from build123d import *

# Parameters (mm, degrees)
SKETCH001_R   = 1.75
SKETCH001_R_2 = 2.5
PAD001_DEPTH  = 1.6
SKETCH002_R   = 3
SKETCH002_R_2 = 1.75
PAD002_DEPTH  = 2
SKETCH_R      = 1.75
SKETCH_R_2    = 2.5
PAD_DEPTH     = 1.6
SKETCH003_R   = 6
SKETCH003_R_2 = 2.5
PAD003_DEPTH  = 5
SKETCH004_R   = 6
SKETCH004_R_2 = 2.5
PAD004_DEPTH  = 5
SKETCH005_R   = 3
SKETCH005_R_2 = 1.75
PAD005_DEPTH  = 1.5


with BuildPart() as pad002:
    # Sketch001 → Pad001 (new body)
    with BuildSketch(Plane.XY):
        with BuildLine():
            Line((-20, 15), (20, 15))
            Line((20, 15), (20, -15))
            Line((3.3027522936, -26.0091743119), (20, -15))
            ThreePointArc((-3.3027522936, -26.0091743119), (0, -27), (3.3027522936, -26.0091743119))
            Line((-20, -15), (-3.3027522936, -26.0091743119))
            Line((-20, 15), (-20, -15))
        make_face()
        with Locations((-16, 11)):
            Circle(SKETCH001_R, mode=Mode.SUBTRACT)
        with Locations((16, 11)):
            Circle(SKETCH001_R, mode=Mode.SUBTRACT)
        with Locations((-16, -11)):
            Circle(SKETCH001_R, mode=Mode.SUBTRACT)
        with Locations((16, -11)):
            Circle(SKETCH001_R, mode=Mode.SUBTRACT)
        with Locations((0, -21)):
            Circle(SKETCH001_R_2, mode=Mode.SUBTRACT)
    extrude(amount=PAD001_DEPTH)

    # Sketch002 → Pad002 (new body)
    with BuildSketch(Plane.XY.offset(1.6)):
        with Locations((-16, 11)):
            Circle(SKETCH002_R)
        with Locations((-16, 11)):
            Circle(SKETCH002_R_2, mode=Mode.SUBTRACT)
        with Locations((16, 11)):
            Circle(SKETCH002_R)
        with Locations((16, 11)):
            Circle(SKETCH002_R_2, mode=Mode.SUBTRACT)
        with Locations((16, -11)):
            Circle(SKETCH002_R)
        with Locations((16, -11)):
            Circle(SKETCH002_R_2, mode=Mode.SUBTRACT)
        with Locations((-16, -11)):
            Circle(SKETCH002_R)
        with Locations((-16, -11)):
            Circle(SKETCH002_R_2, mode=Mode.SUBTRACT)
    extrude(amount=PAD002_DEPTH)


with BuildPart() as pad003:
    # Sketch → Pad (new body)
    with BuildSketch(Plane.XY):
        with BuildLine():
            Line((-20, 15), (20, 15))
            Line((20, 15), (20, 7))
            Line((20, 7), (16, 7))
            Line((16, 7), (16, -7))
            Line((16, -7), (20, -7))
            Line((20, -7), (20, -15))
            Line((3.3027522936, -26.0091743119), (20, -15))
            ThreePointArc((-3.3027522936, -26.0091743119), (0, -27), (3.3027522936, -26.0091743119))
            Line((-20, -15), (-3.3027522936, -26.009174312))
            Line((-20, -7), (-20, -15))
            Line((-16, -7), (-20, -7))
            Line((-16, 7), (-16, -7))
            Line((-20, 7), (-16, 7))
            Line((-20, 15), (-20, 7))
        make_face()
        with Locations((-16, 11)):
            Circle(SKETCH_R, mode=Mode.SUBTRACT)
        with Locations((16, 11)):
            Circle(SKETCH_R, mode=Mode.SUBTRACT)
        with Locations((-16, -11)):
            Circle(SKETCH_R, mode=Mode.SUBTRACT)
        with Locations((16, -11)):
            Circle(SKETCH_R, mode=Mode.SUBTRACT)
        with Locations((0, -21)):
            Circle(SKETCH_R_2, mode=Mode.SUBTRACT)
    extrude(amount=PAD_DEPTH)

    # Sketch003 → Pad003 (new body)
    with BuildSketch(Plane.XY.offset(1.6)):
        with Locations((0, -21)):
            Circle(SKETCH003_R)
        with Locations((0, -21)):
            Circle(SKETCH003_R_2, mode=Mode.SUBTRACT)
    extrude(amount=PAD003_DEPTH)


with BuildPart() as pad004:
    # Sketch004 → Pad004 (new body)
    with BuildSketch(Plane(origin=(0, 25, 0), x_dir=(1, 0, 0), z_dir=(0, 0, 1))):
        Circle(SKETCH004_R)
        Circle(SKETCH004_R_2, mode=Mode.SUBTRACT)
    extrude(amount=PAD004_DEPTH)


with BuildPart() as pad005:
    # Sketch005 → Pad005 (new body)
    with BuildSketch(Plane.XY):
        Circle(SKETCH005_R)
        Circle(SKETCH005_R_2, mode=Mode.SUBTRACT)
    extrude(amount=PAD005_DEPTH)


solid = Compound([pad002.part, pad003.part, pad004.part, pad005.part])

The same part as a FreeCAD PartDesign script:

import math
import FreeCAD as App
import Part
import Sketcher

doc = App.newDocument("Part")
body = doc.addObject("PartDesign::Body", "Body")

# Sketch on XY plane
sketch1 = body.newObject("Sketcher::SketchObject", "Sketch")
sketch1.AttachmentSupport = (doc.getObject("XY_Plane"), [""])
sketch1.MapMode = "FlatFace"
sketch1.addGeometry(Part.LineSegment(App.Vector(20, 15, 0), App.Vector(-20, 15, 0)), False)
sketch1.addGeometry(Part.LineSegment(App.Vector(-20, 15, 0), App.Vector(-20, -15, 0)), False)
sketch1.addGeometry(Part.LineSegment(App.Vector(-20, -15, 0), App.Vector(-3.3, -26, 0)), False)
sketch1.addGeometry(Part.ArcOfCircle(Part.Circle(App.Vector(0, -21, 0), App.Vector(0, 0, 1), 6), math.radians(-123), math.radians(-57)), False)
sketch1.addGeometry(Part.LineSegment(App.Vector(3.3, -26, 0), App.Vector(20, -15, 0)), False)
sketch1.addGeometry(Part.LineSegment(App.Vector(20, -15, 0), App.Vector(20, 15, 0)), False)
sketch1.addGeometry(Part.Circle(App.Vector(16, -11, 0), App.Vector(0, 0, 1), 1.8), False)
sketch1.addGeometry(Part.Circle(App.Vector(0, -21, 0), App.Vector(0, 0, 1), 2.5), False)
sketch1.addGeometry(Part.Circle(App.Vector(-16, -11, 0), App.Vector(0, 0, 1), 1.8), False)
sketch1.addGeometry(Part.Circle(App.Vector(16, 11, 0), App.Vector(0, 0, 1), 1.8), False)
sketch1.addGeometry(Part.Circle(App.Vector(-16, 11, 0), App.Vector(0, 0, 1), 1.8), False)
sketch1.addConstraint(Sketcher.Constraint("Coincident", 0, 2, 1, 1))
sketch1.addConstraint(Sketcher.Constraint("Coincident", 1, 2, 2, 1))
sketch1.addConstraint(Sketcher.Constraint("Tangent", 2, 2, 3, 1))
sketch1.addConstraint(Sketcher.Constraint("Tangent", 3, 2, 4, 1))
sketch1.addConstraint(Sketcher.Constraint("Coincident", 4, 2, 5, 1))
sketch1.addConstraint(Sketcher.Constraint("Coincident", 5, 2, 0, 1))
sketch1.addConstraint(Sketcher.Constraint("Horizontal", 0))
sketch1.addConstraint(Sketcher.Constraint("Vertical", 1))
sketch1.addConstraint(Sketcher.Constraint("Vertical", 5))
sketch1.addConstraint(Sketcher.Constraint("Coincident", 7, 3, 3, 3))
sketch1.addConstraint(Sketcher.Constraint("Equal", 6, 8))
sketch1.addConstraint(Sketcher.Constraint("Equal", 8, 9))
sketch1.addConstraint(Sketcher.Constraint("Equal", 9, 10))
sketch1.addConstraint(Sketcher.Constraint("Symmetric", 8, 3, 9, 3, -1, 1))
sketch1.addConstraint(Sketcher.Constraint("Symmetric", 6, 3, 10, 3, -1, 1))
sketch1.addConstraint(Sketcher.Constraint("Symmetric", 0, 2, 4, 2, -1, 1))
sketch1.addConstraint(Sketcher.Constraint("Symmetric", 6, 3, 8, 3, -2))
sketch1.addConstraint(Sketcher.Constraint("Symmetric", 2, 2, 3, 2, -2))
sketch1.addConstraint(Sketcher.Constraint("Diameter", 7, 5.0))
sketch1.addConstraint(Sketcher.Constraint("Radius", 3, 6.0))
sketch1.addConstraint(Sketcher.Constraint("Diameter", 6, 3.5))
sketch1.addConstraint(Sketcher.Constraint("DistanceX", 0, 2, 0, 1, 40.0))
sketch1.addConstraint(Sketcher.Constraint("DistanceY", 1, 2, 1, 1, 30.0))
sketch1.addConstraint(Sketcher.Constraint("Distance", 2, 20.0))
sketch1.addConstraint(Sketcher.Constraint("DistanceX", -1, 1, 6, 3, 16.0))
sketch1.addConstraint(Sketcher.Constraint("DistanceY", 6, 3, -1, 1, 11.0))
pad1 = body.newObject("PartDesign::Pad", "Pad")
pad1.Profile = sketch1
pad1.Length = 1.6

# Sketch on XY plane
sketch2 = body.newObject("Sketcher::SketchObject", "Sketch001")
sketch2.AttachmentSupport = (doc.getObject("XY_Plane"), [""])
sketch2.MapMode = "FlatFace"
sketch2.AttachmentOffset = App.Placement(App.Vector(0, 0, 1.6), App.Rotation())
sketch2.addGeometry(Part.Circle(App.Vector(-16, 11, 0), App.Vector(0, 0, 1), 3), False)
sketch2.addGeometry(Part.Circle(App.Vector(-16, 11, 0), App.Vector(0, 0, 1), 1.8), False)
sketch2.addGeometry(Part.Circle(App.Vector(16, 11, 0), App.Vector(0, 0, 1), 3), False)
sketch2.addGeometry(Part.Circle(App.Vector(16, 11, 0), App.Vector(0, 0, 1), 1.8), False)
sketch2.addGeometry(Part.Circle(App.Vector(16, -11, 0), App.Vector(0, 0, 1), 3), False)
sketch2.addGeometry(Part.Circle(App.Vector(16, -11, 0), App.Vector(0, 0, 1), 1.8), False)
sketch2.addGeometry(Part.Circle(App.Vector(-16, -11, 0), App.Vector(0, 0, 1), 3), False)
sketch2.addGeometry(Part.Circle(App.Vector(-16, -11, 0), App.Vector(0, 0, 1), 1.8), False)
sketch2.addConstraint(Sketcher.Constraint("Coincident", 1, 3, 0, 3))
sketch2.addConstraint(Sketcher.Constraint("Coincident", 3, 3, 2, 3))
sketch2.addConstraint(Sketcher.Constraint("Coincident", 5, 3, 4, 3))
sketch2.addConstraint(Sketcher.Constraint("Coincident", 7, 3, 6, 3))
sketch2.addConstraint(Sketcher.Constraint("Equal", 0, 2))
sketch2.addConstraint(Sketcher.Constraint("Equal", 1, 3))
sketch2.addConstraint(Sketcher.Constraint("Equal", 2, 4))
sketch2.addConstraint(Sketcher.Constraint("Equal", 3, 5))
sketch2.addConstraint(Sketcher.Constraint("Equal", 4, 6))
sketch2.addConstraint(Sketcher.Constraint("Equal", 5, 7))
sketch2.addConstraint(Sketcher.Constraint("Symmetric", 0, 3, 4, 3, -1, 1))
sketch2.addConstraint(Sketcher.Constraint("Symmetric", 2, 3, 6, 3, -1, 1))
sketch2.addConstraint(Sketcher.Constraint("Symmetric", 0, 3, 2, 3, -2))
sketch2.addConstraint(Sketcher.Constraint("Diameter", 0, 6.0))
sketch2.addConstraint(Sketcher.Constraint("Diameter", 1, 3.5))
sketch2.addConstraint(Sketcher.Constraint("DistanceX", 0, 3, -1, 1, 16.0))
sketch2.addConstraint(Sketcher.Constraint("DistanceY", -1, 1, 0, 3, 11.0))
pad2 = body.newObject("PartDesign::Pad", "Pad001")
pad2.Profile = sketch2
pad2.Length = 2
body2 = doc.addObject("PartDesign::Body", "Body001")

# Sketch on XY plane
sketch3 = body2.newObject("Sketcher::SketchObject", "Sketch002")
sketch3.AttachmentSupport = (doc.getObject("XY_Plane001"), [""])
sketch3.MapMode = "FlatFace"
sketch3.addGeometry(Part.LineSegment(App.Vector(20, 15, 0), App.Vector(-20, 15, 0)), False)
sketch3.addGeometry(Part.LineSegment(App.Vector(-20, 15, 0), App.Vector(-20, 7, 0)), False)
sketch3.addGeometry(Part.LineSegment(App.Vector(-20, 7, 0), App.Vector(-16, 7, 0)), False)
sketch3.addGeometry(Part.LineSegment(App.Vector(-16, 7, 0), App.Vector(-16, -7, 0)), False)
sketch3.addGeometry(Part.LineSegment(App.Vector(-16, -7, 0), App.Vector(-20, -7, 0)), False)
sketch3.addGeometry(Part.LineSegment(App.Vector(-20, -7, 0), App.Vector(-20, -15, 0)), False)
sketch3.addGeometry(Part.LineSegment(App.Vector(-20, -15, 0), App.Vector(-3.3, -26, 0)), False)
sketch3.addGeometry(Part.ArcOfCircle(Part.Circle(App.Vector(0, -21, 0), App.Vector(0, 0, 1), 6), math.radians(-123), math.radians(-57)), False)
sketch3.addGeometry(Part.LineSegment(App.Vector(3.3, -26, 0), App.Vector(20, -15, 0)), False)
sketch3.addGeometry(Part.LineSegment(App.Vector(20, -15, 0), App.Vector(20, -7, 0)), False)
sketch3.addGeometry(Part.LineSegment(App.Vector(20, -7, 0), App.Vector(16, -7, 0)), False)
sketch3.addGeometry(Part.LineSegment(App.Vector(16, -7, 0), App.Vector(16, 7, 0)), False)
sketch3.addGeometry(Part.LineSegment(App.Vector(16, 7, 0), App.Vector(20, 7, 0)), False)
sketch3.addGeometry(Part.LineSegment(App.Vector(20, 7, 0), App.Vector(20, 15, 0)), False)
sketch3.addGeometry(Part.Circle(App.Vector(16, -11, 0), App.Vector(0, 0, 1), 1.8), False)
sketch3.addGeometry(Part.Circle(App.Vector(0, -21, 0), App.Vector(0, 0, 1), 2.5), False)
sketch3.addGeometry(Part.Circle(App.Vector(-16, -11, 0), App.Vector(0, 0, 1), 1.8), False)
sketch3.addGeometry(Part.Circle(App.Vector(16, 11, 0), App.Vector(0, 0, 1), 1.8), False)
sketch3.addGeometry(Part.Circle(App.Vector(-16, 11, 0), App.Vector(0, 0, 1), 1.8), False)
sketch3.addConstraint(Sketcher.Constraint("Coincident", 0, 2, 1, 1))
sketch3.addConstraint(Sketcher.Constraint("Coincident", 1, 2, 2, 1))
sketch3.addConstraint(Sketcher.Constraint("Coincident", 2, 2, 3, 1))
sketch3.addConstraint(Sketcher.Constraint("Coincident", 3, 2, 4, 1))
sketch3.addConstraint(Sketcher.Constraint("Coincident", 4, 2, 5, 1))
sketch3.addConstraint(Sketcher.Constraint("Coincident", 5, 2, 6, 1))
sketch3.addConstraint(Sketcher.Constraint("Tangent", 6, 2, 7, 1))
sketch3.addConstraint(Sketcher.Constraint("Tangent", 7, 2, 8, 1))
sketch3.addConstraint(Sketcher.Constraint("Coincident", 8, 2, 9, 1))
sketch3.addConstraint(Sketcher.Constraint("Coincident", 9, 2, 10, 1))
sketch3.addConstraint(Sketcher.Constraint("Coincident", 10, 2, 11, 1))
sketch3.addConstraint(Sketcher.Constraint("Coincident", 11, 2, 12, 1))
sketch3.addConstraint(Sketcher.Constraint("Coincident", 12, 2, 13, 1))
sketch3.addConstraint(Sketcher.Constraint("Coincident", 13, 2, 0, 1))
sketch3.addConstraint(Sketcher.Constraint("Horizontal", 0))
sketch3.addConstraint(Sketcher.Constraint("Vertical", 1))
sketch3.addConstraint(Sketcher.Constraint("Horizontal", 2))
sketch3.addConstraint(Sketcher.Constraint("Vertical", 3))
sketch3.addConstraint(Sketcher.Constraint("Horizontal", 4))
sketch3.addConstraint(Sketcher.Constraint("Vertical", 5))
sketch3.addConstraint(Sketcher.Constraint("Vertical", 9))
sketch3.addConstraint(Sketcher.Constraint("Horizontal", 10))
sketch3.addConstraint(Sketcher.Constraint("Vertical", 11))
sketch3.addConstraint(Sketcher.Constraint("Horizontal", 12))
sketch3.addConstraint(Sketcher.Constraint("Vertical", 13))
sketch3.addConstraint(Sketcher.Constraint("Coincident", 15, 3, 7, 3))
sketch3.addConstraint(Sketcher.Constraint("Equal", 14, 16))
sketch3.addConstraint(Sketcher.Constraint("Equal", 16, 17))
sketch3.addConstraint(Sketcher.Constraint("Equal", 17, 18))
sketch3.addConstraint(Sketcher.Constraint("Symmetric", 16, 3, 17, 3, -1, 1))
sketch3.addConstraint(Sketcher.Constraint("Symmetric", 14, 3, 18, 3, -1, 1))
sketch3.addConstraint(Sketcher.Constraint("Symmetric", 0, 2, 8, 2, -1, 1))
sketch3.addConstraint(Sketcher.Constraint("Symmetric", 2, 2, 10, 2, -1, 1))
sketch3.addConstraint(Sketcher.Constraint("Symmetric", 4, 2, 12, 2, -1, 1))
sketch3.addConstraint(Sketcher.Constraint("Symmetric", 14, 3, 16, 3, -2))
sketch3.addConstraint(Sketcher.Constraint("Symmetric", 6, 2, 7, 2, -2))
sketch3.addConstraint(Sketcher.Constraint("Symmetric", 4, 2, 9, 2, -2))
sketch3.addConstraint(Sketcher.Constraint("Vertical", 18, 3, 2, 2))
sketch3.addConstraint(Sketcher.Constraint("Diameter", 15, 5.0))
sketch3.addConstraint(Sketcher.Constraint("Radius", 7, 6.0))
sketch3.addConstraint(Sketcher.Constraint("Diameter", 14, 3.5))
sketch3.addConstraint(Sketcher.Constraint("DistanceX", 0, 2, 0, 1, 40.0))
sketch3.addConstraint(Sketcher.Constraint("DistanceX", 2, 1, 2, 2, 4.0))
sketch3.addConstraint(Sketcher.Constraint("DistanceY", 1, 2, 1, 1, 8.0))
sketch3.addConstraint(Sketcher.Constraint("DistanceY", 3, 2, 3, 1, 14.0))
sketch3.addConstraint(Sketcher.Constraint("Distance", 6, 20.0))
sketch3.addConstraint(Sketcher.Constraint("DistanceY", 14, 3, -1, 1, 11.0))
pad3 = body2.newObject("PartDesign::Pad", "Pad002")
pad3.Profile = sketch3
pad3.Length = 1.6

# Sketch on XY plane
sketch4 = body2.newObject("Sketcher::SketchObject", "Sketch003")
sketch4.AttachmentSupport = (doc.getObject("XY_Plane001"), [""])
sketch4.MapMode = "FlatFace"
sketch4.AttachmentOffset = App.Placement(App.Vector(0, 0, 1.6), App.Rotation())
sketch4.addGeometry(Part.Circle(App.Vector(0, -21, 0), App.Vector(0, 0, 1), 6), False)
sketch4.addGeometry(Part.Circle(App.Vector(0, -21, 0), App.Vector(0, 0, 1), 2.5), False)
sketch4.addConstraint(Sketcher.Constraint("Coincident", 1, 3, 0, 3))
sketch4.addConstraint(Sketcher.Constraint("PointOnObject", 0, 3, -2))
sketch4.addConstraint(Sketcher.Constraint("Diameter", 0, 12.0))
sketch4.addConstraint(Sketcher.Constraint("Diameter", 1, 5.0))
sketch4.addConstraint(Sketcher.Constraint("DistanceY", 0, 3, -1, 1, 21.0))
pad4 = body2.newObject("PartDesign::Pad", "Pad003")
pad4.Profile = sketch4
pad4.Length = 5
body3 = doc.addObject("PartDesign::Body", "Body002")

# Sketch on XY plane
sketch5 = body3.newObject("Sketcher::SketchObject", "Sketch004")
sketch5.AttachmentSupport = (doc.getObject("XY_Plane002"), [""])
sketch5.MapMode = "FlatFace"
sketch5.addGeometry(Part.Circle(App.Vector(0, 25, 0), App.Vector(0, 0, 1), 6), False)
sketch5.addGeometry(Part.Circle(App.Vector(0, 25, 0), App.Vector(0, 0, 1), 2.5), False)
sketch5.addConstraint(Sketcher.Constraint("Coincident", 1, 3, 0, 3))
sketch5.addConstraint(Sketcher.Constraint("PointOnObject", 0, 3, -2))
sketch5.addConstraint(Sketcher.Constraint("Diameter", 0, 12.0))
sketch5.addConstraint(Sketcher.Constraint("Diameter", 1, 5.0))
sketch5.addConstraint(Sketcher.Constraint("DistanceY", -1, 1, 0, 3, 25.0))
pad5 = body3.newObject("PartDesign::Pad", "Pad004")
pad5.Profile = sketch5
pad5.Length = 5
body4 = doc.addObject("PartDesign::Body", "Body003")

# Sketch on XY plane
sketch6 = body4.newObject("Sketcher::SketchObject", "Sketch005")
sketch6.AttachmentSupport = (doc.getObject("XY_Plane003"), [""])
sketch6.MapMode = "FlatFace"
sketch6.addGeometry(Part.Circle(App.Vector(0, 0, 0), App.Vector(0, 0, 1), 3), False)
sketch6.addGeometry(Part.Circle(App.Vector(0, 0, 0), App.Vector(0, 0, 1), 1.8), False)
sketch6.addConstraint(Sketcher.Constraint("Coincident", 0, 3, -1, 1))
sketch6.addConstraint(Sketcher.Constraint("Coincident", 1, 3, -1, 1))
sketch6.addConstraint(Sketcher.Constraint("Diameter", 0, 6.0))
sketch6.addConstraint(Sketcher.Constraint("Diameter", 1, 3.5))
pad6 = body4.newObject("PartDesign::Pad", "Pad005")
pad6.Profile = sketch6
pad6.Length = 1.5

doc.recompute()
